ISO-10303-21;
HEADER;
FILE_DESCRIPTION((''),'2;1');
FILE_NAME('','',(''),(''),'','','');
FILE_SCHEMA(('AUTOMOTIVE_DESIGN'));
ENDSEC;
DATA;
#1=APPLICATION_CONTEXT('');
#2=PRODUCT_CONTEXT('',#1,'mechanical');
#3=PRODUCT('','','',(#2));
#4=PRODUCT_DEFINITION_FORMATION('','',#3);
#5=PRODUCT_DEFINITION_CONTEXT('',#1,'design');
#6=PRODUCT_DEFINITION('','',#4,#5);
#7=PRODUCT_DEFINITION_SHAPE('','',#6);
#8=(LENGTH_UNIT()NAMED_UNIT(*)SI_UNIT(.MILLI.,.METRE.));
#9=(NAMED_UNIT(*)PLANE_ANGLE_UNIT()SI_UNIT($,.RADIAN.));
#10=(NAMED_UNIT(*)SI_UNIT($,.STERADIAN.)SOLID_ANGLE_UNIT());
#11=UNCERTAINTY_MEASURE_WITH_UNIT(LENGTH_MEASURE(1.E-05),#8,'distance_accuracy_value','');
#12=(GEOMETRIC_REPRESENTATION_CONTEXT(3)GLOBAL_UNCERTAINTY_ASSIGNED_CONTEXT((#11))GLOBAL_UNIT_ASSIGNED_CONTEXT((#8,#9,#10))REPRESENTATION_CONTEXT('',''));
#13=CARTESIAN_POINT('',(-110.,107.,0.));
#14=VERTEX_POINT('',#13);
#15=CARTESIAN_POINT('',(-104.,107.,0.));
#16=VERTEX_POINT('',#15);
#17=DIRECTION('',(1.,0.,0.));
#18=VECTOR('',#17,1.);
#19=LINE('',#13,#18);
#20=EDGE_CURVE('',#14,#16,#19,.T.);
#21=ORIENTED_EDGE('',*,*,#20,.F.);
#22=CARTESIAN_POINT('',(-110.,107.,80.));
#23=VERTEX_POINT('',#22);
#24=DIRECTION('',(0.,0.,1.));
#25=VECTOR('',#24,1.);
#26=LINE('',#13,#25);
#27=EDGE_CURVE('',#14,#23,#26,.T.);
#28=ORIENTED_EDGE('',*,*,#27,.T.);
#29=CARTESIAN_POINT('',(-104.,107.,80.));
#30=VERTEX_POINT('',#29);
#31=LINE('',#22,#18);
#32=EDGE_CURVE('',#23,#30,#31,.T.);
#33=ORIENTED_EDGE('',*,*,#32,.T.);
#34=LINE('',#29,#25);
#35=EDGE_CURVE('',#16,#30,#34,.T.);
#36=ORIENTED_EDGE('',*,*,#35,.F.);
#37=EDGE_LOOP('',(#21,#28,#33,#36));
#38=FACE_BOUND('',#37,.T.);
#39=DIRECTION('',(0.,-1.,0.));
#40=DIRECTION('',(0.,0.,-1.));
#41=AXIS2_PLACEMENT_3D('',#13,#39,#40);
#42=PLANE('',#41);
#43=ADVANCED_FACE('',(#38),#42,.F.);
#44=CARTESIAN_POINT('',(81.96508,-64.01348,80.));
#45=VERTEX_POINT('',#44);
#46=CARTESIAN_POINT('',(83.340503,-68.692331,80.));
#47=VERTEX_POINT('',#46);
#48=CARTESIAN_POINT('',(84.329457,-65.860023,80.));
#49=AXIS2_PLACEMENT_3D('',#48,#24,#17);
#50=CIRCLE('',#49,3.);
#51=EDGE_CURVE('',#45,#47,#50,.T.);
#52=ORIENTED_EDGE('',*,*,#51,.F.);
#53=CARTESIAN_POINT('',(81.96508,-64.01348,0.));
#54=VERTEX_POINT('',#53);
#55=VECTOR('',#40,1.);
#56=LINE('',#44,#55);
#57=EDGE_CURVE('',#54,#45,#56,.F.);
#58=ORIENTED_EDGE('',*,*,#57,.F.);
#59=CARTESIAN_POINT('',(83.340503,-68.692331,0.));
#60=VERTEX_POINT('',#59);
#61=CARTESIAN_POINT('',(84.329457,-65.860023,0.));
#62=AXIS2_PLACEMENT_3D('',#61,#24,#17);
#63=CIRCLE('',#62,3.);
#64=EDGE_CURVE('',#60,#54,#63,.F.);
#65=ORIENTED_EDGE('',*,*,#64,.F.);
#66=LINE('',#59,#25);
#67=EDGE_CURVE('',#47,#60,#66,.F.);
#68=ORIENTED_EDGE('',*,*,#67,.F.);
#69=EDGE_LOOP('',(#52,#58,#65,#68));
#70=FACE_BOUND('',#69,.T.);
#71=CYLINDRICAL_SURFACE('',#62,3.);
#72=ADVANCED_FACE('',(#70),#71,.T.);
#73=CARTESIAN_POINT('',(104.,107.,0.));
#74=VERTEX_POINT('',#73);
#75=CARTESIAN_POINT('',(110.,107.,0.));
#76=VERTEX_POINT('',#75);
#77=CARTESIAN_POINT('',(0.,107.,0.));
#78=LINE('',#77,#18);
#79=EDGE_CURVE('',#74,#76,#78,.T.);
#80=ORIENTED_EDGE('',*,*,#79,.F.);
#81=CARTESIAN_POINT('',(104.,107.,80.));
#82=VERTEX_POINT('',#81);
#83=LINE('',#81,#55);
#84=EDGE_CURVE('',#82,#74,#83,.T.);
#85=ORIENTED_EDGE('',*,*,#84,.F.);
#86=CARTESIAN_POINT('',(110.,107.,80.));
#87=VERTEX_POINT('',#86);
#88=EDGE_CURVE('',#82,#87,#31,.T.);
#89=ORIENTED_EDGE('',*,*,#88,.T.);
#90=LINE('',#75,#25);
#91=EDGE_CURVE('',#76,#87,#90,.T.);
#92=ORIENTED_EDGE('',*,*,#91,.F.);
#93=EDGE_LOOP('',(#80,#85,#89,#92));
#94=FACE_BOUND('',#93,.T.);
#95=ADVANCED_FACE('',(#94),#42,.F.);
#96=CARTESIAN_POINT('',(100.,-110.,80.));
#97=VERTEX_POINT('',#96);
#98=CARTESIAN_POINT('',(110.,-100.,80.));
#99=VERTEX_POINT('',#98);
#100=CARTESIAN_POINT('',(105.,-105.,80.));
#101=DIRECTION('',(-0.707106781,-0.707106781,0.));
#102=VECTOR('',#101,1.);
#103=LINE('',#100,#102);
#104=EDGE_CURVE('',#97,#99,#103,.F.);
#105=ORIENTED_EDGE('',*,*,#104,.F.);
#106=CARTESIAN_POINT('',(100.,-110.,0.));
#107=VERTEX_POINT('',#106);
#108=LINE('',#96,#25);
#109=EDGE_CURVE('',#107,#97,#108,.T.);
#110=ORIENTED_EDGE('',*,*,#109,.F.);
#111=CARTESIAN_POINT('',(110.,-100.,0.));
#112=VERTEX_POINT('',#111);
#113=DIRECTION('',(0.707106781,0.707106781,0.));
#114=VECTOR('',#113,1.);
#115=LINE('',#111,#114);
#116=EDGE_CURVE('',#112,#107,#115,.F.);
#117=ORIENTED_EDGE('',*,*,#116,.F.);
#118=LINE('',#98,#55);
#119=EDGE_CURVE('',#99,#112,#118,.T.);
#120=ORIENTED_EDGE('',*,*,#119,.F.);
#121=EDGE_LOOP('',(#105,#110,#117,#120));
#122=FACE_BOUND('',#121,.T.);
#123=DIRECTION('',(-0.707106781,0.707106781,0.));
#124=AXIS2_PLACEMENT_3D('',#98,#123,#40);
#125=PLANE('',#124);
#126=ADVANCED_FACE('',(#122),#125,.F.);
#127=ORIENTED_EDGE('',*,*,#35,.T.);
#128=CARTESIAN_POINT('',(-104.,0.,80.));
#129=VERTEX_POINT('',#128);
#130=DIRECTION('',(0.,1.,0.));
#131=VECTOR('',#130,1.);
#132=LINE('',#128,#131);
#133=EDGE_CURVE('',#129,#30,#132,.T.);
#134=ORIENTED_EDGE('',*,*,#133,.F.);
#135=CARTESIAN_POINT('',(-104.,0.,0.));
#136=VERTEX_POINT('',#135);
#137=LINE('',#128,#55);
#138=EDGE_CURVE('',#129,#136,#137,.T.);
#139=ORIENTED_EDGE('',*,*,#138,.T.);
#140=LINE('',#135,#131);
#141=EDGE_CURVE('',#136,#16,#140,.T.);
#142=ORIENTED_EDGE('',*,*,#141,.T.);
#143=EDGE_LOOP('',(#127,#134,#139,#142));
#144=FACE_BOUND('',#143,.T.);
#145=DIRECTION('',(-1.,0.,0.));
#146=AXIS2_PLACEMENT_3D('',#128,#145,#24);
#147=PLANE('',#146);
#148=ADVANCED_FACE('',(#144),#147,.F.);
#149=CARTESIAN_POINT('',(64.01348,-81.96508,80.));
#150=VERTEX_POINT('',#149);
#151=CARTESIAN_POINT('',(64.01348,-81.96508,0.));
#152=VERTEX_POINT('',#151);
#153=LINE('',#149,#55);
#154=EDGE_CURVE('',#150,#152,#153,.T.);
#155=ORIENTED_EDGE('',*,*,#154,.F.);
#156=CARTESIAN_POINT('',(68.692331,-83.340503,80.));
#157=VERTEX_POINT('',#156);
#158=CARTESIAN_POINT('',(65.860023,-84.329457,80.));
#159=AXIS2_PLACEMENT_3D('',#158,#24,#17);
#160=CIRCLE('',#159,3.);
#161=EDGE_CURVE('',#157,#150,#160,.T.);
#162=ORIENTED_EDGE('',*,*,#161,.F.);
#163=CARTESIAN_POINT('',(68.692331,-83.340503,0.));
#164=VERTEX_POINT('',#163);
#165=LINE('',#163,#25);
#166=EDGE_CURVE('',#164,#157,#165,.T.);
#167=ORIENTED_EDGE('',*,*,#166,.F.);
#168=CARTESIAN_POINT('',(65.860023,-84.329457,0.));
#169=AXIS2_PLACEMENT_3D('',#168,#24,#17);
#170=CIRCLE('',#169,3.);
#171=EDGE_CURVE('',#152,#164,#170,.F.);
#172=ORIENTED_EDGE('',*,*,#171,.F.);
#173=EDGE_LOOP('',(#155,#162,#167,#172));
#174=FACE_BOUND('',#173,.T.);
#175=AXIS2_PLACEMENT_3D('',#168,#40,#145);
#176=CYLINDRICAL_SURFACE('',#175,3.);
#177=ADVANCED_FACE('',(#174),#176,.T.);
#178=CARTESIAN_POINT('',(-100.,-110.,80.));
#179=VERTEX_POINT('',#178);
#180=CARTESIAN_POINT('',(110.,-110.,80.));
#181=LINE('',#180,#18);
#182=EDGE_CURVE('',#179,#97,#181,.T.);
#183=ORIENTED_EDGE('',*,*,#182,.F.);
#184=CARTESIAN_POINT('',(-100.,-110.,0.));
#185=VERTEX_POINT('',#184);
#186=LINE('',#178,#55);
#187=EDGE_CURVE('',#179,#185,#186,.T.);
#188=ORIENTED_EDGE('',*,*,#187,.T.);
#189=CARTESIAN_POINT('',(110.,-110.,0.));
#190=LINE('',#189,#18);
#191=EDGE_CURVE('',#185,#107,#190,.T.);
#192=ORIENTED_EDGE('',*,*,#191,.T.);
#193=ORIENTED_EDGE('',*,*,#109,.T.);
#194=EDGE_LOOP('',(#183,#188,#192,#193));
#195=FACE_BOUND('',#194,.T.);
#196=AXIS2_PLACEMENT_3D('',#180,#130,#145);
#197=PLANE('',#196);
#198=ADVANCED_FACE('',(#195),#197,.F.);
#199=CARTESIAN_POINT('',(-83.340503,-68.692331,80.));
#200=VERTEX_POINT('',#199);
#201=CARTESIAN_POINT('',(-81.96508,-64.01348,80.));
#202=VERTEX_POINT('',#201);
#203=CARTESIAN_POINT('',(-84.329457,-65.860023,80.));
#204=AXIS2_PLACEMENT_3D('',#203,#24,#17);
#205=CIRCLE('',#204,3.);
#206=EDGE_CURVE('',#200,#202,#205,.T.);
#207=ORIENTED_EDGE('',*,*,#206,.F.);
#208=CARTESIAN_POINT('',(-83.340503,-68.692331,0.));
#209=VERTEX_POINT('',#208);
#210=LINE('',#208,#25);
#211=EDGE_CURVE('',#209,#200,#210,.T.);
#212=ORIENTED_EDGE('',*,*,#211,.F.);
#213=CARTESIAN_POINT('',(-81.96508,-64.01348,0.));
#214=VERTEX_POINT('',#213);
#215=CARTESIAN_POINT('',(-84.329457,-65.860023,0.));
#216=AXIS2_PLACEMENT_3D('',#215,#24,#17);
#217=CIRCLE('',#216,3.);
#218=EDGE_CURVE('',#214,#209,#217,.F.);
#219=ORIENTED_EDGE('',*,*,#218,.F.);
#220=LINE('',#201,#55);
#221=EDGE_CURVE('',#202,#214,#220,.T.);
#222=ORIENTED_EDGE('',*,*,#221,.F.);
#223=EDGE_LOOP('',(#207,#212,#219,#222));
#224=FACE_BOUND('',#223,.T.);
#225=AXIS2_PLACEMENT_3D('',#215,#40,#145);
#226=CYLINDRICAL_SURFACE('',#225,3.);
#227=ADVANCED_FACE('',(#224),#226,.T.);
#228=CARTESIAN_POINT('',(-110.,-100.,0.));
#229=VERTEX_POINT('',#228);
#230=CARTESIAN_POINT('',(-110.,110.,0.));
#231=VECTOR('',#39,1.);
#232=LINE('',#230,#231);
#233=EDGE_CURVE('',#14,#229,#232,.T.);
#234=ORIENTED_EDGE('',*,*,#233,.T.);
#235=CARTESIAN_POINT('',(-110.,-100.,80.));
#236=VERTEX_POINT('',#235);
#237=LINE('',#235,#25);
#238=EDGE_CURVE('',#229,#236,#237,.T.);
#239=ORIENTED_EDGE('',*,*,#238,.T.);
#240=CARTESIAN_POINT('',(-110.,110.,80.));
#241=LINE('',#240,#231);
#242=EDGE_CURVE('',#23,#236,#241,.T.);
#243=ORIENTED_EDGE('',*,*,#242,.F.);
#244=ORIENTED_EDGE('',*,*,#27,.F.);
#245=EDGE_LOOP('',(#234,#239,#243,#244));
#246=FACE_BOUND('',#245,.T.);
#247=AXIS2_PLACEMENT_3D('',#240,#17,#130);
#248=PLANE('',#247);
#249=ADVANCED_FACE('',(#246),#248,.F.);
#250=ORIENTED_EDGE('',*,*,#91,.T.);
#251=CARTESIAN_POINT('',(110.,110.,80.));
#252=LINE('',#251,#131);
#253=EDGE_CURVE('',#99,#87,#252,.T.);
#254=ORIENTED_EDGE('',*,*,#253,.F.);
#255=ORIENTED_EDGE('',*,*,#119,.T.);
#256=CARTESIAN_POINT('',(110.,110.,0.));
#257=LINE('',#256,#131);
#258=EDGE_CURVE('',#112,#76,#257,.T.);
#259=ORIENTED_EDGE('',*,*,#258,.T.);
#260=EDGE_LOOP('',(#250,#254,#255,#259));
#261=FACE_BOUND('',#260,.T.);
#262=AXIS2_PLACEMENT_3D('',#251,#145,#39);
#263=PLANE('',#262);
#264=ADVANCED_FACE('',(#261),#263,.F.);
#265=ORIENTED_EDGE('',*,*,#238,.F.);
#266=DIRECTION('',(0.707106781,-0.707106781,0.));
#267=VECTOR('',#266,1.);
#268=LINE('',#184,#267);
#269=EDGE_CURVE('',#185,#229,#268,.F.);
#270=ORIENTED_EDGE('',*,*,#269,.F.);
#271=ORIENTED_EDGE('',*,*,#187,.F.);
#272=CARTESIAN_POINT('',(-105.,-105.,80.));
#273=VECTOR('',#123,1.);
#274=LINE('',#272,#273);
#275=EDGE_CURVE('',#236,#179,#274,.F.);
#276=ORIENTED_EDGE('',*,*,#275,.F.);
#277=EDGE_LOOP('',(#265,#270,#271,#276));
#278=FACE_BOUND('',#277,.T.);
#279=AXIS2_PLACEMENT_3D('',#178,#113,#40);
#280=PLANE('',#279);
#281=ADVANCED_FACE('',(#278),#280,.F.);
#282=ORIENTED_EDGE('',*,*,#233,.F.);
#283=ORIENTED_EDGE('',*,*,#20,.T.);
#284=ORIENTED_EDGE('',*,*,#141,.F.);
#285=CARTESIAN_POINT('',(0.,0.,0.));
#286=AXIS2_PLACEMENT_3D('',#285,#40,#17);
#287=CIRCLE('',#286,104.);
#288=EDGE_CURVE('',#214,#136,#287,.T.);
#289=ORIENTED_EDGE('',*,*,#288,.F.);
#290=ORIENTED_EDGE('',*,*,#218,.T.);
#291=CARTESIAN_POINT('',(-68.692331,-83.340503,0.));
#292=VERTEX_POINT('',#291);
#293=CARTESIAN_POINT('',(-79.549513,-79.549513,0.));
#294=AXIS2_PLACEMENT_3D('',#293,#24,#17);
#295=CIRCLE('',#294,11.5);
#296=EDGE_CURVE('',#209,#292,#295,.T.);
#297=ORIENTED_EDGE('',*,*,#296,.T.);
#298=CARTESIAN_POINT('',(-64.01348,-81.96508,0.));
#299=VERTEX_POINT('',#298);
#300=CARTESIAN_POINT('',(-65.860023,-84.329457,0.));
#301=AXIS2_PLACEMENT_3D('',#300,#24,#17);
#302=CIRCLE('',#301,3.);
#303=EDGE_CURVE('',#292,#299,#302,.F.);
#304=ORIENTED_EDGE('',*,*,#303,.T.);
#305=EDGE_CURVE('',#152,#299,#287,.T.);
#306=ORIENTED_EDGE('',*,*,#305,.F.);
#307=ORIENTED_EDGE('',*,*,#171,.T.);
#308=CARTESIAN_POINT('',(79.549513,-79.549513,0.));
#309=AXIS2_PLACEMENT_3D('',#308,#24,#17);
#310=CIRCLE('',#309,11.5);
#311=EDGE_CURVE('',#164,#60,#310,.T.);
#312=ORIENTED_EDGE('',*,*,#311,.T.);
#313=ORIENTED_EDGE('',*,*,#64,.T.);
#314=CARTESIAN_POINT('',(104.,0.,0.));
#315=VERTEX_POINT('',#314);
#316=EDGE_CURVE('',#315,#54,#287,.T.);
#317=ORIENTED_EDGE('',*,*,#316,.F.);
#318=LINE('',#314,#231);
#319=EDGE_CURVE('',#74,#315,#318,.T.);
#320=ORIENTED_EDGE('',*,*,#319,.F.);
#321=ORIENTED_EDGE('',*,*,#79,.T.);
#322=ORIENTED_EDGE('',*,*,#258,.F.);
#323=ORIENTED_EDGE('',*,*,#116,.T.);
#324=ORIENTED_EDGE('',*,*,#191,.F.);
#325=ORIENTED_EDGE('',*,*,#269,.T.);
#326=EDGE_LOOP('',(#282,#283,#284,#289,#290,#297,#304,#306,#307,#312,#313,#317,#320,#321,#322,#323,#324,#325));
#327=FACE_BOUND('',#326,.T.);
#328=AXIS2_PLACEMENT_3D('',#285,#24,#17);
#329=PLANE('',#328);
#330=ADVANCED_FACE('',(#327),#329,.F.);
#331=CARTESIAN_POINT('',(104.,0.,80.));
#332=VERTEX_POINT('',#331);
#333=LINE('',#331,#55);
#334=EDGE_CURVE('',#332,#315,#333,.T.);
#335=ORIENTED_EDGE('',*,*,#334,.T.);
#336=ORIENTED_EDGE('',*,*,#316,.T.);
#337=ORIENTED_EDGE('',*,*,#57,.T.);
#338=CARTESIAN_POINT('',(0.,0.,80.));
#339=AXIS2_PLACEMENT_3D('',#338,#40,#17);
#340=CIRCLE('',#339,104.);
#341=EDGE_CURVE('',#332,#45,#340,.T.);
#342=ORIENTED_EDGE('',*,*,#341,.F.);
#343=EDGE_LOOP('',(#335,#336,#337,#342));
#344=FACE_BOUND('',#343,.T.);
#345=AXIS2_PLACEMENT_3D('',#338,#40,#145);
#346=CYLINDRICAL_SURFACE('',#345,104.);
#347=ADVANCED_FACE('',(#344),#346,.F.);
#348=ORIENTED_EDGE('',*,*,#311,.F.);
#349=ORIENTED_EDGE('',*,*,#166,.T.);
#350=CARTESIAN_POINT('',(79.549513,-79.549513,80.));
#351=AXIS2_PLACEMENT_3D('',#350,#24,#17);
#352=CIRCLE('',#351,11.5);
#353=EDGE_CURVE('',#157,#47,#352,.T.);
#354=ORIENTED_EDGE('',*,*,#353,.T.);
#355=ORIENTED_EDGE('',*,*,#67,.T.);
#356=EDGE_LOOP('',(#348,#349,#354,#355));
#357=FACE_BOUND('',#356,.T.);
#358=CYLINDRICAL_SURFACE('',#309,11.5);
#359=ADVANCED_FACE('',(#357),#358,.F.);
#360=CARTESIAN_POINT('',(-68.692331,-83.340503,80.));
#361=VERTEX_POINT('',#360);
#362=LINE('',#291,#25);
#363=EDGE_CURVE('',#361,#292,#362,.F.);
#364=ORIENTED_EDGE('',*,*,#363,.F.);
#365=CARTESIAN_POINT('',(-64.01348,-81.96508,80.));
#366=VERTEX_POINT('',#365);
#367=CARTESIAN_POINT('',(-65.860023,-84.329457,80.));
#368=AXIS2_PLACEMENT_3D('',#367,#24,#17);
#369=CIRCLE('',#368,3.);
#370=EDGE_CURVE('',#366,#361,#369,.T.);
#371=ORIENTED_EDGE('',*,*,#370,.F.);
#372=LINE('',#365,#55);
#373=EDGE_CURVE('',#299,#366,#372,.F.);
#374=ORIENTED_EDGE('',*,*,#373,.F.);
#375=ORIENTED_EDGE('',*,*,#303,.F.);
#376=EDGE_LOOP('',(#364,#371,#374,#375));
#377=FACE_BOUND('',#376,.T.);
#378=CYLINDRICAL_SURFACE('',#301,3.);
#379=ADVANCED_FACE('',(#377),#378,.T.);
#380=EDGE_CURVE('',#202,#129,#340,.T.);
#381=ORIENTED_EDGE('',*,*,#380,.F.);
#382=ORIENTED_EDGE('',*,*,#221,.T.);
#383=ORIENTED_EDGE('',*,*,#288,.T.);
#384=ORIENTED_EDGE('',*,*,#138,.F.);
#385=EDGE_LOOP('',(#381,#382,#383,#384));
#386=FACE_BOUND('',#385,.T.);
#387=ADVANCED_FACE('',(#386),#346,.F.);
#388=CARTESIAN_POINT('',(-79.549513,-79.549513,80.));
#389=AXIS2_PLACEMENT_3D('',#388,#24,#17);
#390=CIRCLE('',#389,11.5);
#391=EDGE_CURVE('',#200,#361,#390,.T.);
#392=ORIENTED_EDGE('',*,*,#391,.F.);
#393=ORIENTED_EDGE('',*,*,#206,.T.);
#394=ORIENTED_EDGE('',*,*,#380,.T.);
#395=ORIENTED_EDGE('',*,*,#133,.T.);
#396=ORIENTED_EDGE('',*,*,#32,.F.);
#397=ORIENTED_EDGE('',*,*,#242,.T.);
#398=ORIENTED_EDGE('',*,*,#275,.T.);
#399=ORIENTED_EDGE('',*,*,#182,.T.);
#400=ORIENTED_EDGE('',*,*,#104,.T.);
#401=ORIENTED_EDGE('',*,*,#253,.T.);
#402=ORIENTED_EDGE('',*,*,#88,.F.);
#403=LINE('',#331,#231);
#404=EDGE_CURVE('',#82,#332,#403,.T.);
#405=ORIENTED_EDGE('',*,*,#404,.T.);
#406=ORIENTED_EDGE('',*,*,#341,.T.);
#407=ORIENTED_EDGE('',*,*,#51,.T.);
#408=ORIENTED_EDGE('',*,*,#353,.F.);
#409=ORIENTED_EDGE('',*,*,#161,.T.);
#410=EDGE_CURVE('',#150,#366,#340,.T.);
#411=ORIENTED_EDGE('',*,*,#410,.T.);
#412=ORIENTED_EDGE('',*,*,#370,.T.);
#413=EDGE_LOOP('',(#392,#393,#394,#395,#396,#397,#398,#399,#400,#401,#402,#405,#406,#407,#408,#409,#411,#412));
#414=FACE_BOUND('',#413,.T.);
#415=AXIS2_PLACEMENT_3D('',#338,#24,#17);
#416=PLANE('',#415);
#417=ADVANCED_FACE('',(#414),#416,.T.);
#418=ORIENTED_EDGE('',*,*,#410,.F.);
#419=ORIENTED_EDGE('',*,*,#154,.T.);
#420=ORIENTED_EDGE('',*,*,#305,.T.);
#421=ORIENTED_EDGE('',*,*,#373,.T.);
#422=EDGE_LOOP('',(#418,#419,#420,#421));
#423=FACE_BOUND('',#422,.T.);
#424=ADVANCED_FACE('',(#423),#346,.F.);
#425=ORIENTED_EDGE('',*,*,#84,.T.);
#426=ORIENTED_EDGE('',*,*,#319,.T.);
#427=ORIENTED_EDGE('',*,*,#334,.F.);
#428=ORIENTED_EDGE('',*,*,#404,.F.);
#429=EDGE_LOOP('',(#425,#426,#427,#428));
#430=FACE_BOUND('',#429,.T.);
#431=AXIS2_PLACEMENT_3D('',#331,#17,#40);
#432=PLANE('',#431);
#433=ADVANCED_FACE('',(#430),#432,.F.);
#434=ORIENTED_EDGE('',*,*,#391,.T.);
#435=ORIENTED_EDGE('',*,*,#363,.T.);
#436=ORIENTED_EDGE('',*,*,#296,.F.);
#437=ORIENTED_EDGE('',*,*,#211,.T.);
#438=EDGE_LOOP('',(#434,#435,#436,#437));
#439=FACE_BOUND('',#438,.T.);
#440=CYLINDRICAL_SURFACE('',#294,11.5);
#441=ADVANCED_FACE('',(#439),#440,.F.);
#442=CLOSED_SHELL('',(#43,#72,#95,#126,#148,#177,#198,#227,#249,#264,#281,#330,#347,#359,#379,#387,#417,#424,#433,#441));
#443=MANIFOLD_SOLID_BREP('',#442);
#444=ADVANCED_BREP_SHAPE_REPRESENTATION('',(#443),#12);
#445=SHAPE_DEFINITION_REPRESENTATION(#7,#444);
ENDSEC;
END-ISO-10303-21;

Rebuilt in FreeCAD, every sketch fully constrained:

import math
import FreeCAD as App
import Part
import Sketcher
Q = App.Units.Quantity


def edges_at(feature, points):
    """Names of the edges that pass closest to the given points."""
    edges = feature.Shape.Edges
    near = lambda p: min(range(len(edges)), key=lambda i: edges[i].distToShape(Part.Vertex(*p))[0])
    return sorted({f"Edge{near(p) + 1}" for p in points})


def add_polygon(sketch, points):
    """Adds a closed chain of lines whose ends are joined by coincident constraints."""
    first, n = sketch.GeometryCount, len(points)
    for a, b in zip(points, points[1:] + points[:1]):
        sketch.addGeometry(Part.LineSegment(App.Vector(*a, 0), App.Vector(*b, 0)), False)
    for i in range(n):
        sketch.addConstraint(Sketcher.Constraint("Coincident", first + i, 2, first + (i + 1) % n, 1))

doc = App.newDocument("Part")
body = doc.addObject("PartDesign::Body", "Body")

# Sketch on XY plane
sketch1 = body.newObject("Sketcher::SketchObject", "Sketch")
sketch1.AttachmentSupport = (doc.getObject("XY_Plane"), [""])
sketch1.MapMode = "FlatFace"
sketch1.addGeometry(Part.LineSegment(App.Vector(-104, 0, 0), App.Vector(-104, 110, 0)), False)
sketch1.addGeometry(Part.LineSegment(App.Vector(-104, 110, 0), App.Vector(-110, 110, 0)), False)
sketch1.addGeometry(Part.LineSegment(App.Vector(-110, 110, 0), App.Vector(-110, -110, 0)), False)
sketch1.addGeometry(Part.LineSegment(App.Vector(-110, -110, 0), App.Vector(110, -110, 0)), False)
sketch1.addGeometry(Part.LineSegment(App.Vector(110, -110, 0), App.Vector(110, 110, 0)), False)
sketch1.addGeometry(Part.LineSegment(App.Vector(110, 110, 0), App.Vector(104, 110, 0)), False)
sketch1.addGeometry(Part.LineSegment(App.Vector(104, 110, 0), App.Vector(104, 0, 0)), False)
sketch1.addGeometry(Part.ArcOfCircle(Part.Circle(App.Vector(0, 0, 0), App.Vector(0, 0, 1), 104), math.radians(180), math.radians(360)), False)
sketch1.addConstraint(Sketcher.Constraint("Coincident", 0, 2, 1, 1))
sketch1.addConstraint(Sketcher.Constraint("Coincident", 1, 2, 2, 1))
sketch1.addConstraint(Sketcher.Constraint("Coincident", 2, 2, 3, 1))
sketch1.addConstraint(Sketcher.Constraint("Coincident", 3, 2, 4, 1))
sketch1.addConstraint(Sketcher.Constraint("Coincident", 4, 2, 5, 1))
sketch1.addConstraint(Sketcher.Constraint("Coincident", 5, 2, 6, 1))
sketch1.addConstraint(Sketcher.Constraint("Tangent", 6, 2, 7, 2))
sketch1.addConstraint(Sketcher.Constraint("Tangent", 7, 1, 0, 1))
sketch1.addConstraint(Sketcher.Constraint("Vertical", 0))
sketch1.addConstraint(Sketcher.Constraint("Horizontal", 1))
sketch1.addConstraint(Sketcher.Constraint("Vertical", 2))
sketch1.addConstraint(Sketcher.Constraint("Horizontal", 3))
sketch1.addConstraint(Sketcher.Constraint("Vertical", 4))
sketch1.addConstraint(Sketcher.Constraint("Horizontal", 5))
sketch1.addConstraint(Sketcher.Constraint("Vertical", 6))
sketch1.addConstraint(Sketcher.Constraint("Coincident", 7, 3, -1, 1))
sketch1.addConstraint(Sketcher.Constraint("Symmetric", 1, 2, 3, 2, -1, 1))
sketch1.addConstraint(Sketcher.Constraint("Horizontal", 1, 2, 4, 2))
sketch1.addConstraint(Sketcher.Constraint("Equal", 3, 2))
sketch1.addConstraint(Sketcher.Constraint("Radius", 7, Q("104 mm")))
sketch1.addConstraint(Sketcher.Constraint("DistanceX", 1, 2, 1, 1, Q("6 mm")))
pad1 = body.newObject("PartDesign::Pad", "Pad")
pad1.Profile = sketch1
pad1.Length = 80

# Sketch on XY plane
sketch2 = body.newObject("Sketcher::SketchObject", "Sketch001")
sketch2.AttachmentSupport = (doc.getObject("XY_Plane"), [""])
sketch2.MapMode = "FlatFace"
sketch2.AttachmentOffset = App.Placement(App.Vector(0, 0, 80), App.Rotation())
sketch2.addGeometry(Part.Circle(App.Vector(-80, -80, 0), App.Vector(0, 0, 1), 12), False)
sketch2.addGeometry(Part.Circle(App.Vector(80, -80, 0), App.Vector(0, 0, 1), 12), False)
sketch2.addConstraint(Sketcher.Constraint("Equal", 0, 1))
sketch2.addConstraint(Sketcher.Constraint("Symmetric", 0, 3, 1, 3, -2))
sketch2.addConstraint(Sketcher.Constraint("Diameter", 0, Q("23 mm")))
sketch2.addConstraint(Sketcher.Constraint("DistanceX", 0, 3, -1, 1, Q("79.549513 mm")))
sketch2.addConstraint(Sketcher.Constraint("DistanceY", 0, 3, -1, 1, Q("79.549513 mm")))
pocket1 = body.newObject("PartDesign::Pocket", "Pocket")
pocket1.Profile = sketch2
pocket1.Type = "ThroughAll"
doc.recompute()

fillet = body.newObject("PartDesign::Fillet", "Fillet")
fillet.Base = (pocket1, edges_at(pocket1, [
    (-78.613, -68.088, 40),
    (-68.088, -78.613, 40),
    (68.088, -78.613, 40),
    (78.613, -68.088, 40),
]))
fillet.Radius = 3
doc.recompute()

chamfer = body.newObject("PartDesign::Chamfer", "Chamfer")
chamfer.Base = (fillet, edges_at(fillet, [(110, -110, 40), (-110, -110, 40)]))
chamfer.Size = 10

# Sketch on XY plane
sketch3 = body.newObject("Sketcher::SketchObject", "Sketch002")
sketch3.AttachmentSupport = (doc.getObject("XY_Plane"), [""])
sketch3.MapMode = "FlatFace"
sketch3.AttachmentOffset = App.Placement(App.Vector(0, 0, 80), App.Rotation())
add_polygon(sketch3, [(-110, 110), (-110, 107), (110, 107), (110, 110)])  # lines 0-3
sketch3.addConstraint(Sketcher.Constraint("Vertical", 0))
sketch3.addConstraint(Sketcher.Constraint("Horizontal", 1))
sketch3.addConstraint(Sketcher.Constraint("Vertical", 2))
sketch3.addConstraint(Sketcher.Constraint("Horizontal", 3))
sketch3.addConstraint(Sketcher.Constraint("DistanceX", 1, 1, 1, 2, Q("220 mm")))
sketch3.addConstraint(Sketcher.Constraint("DistanceY", 0, 2, 0, 1, Q("3 mm")))
sketch3.addConstraint(Sketcher.Constraint("DistanceX", 0, 2, -1, 1, Q("110 mm")))
sketch3.addConstraint(Sketcher.Constraint("DistanceY", -1, 1, 0, 2, Q("107 mm")))
pocket2 = body.newObject("PartDesign::Pocket", "Pocket001")
pocket2.Profile = sketch3
pocket2.Type = "ThroughAll"

doc.recompute()
